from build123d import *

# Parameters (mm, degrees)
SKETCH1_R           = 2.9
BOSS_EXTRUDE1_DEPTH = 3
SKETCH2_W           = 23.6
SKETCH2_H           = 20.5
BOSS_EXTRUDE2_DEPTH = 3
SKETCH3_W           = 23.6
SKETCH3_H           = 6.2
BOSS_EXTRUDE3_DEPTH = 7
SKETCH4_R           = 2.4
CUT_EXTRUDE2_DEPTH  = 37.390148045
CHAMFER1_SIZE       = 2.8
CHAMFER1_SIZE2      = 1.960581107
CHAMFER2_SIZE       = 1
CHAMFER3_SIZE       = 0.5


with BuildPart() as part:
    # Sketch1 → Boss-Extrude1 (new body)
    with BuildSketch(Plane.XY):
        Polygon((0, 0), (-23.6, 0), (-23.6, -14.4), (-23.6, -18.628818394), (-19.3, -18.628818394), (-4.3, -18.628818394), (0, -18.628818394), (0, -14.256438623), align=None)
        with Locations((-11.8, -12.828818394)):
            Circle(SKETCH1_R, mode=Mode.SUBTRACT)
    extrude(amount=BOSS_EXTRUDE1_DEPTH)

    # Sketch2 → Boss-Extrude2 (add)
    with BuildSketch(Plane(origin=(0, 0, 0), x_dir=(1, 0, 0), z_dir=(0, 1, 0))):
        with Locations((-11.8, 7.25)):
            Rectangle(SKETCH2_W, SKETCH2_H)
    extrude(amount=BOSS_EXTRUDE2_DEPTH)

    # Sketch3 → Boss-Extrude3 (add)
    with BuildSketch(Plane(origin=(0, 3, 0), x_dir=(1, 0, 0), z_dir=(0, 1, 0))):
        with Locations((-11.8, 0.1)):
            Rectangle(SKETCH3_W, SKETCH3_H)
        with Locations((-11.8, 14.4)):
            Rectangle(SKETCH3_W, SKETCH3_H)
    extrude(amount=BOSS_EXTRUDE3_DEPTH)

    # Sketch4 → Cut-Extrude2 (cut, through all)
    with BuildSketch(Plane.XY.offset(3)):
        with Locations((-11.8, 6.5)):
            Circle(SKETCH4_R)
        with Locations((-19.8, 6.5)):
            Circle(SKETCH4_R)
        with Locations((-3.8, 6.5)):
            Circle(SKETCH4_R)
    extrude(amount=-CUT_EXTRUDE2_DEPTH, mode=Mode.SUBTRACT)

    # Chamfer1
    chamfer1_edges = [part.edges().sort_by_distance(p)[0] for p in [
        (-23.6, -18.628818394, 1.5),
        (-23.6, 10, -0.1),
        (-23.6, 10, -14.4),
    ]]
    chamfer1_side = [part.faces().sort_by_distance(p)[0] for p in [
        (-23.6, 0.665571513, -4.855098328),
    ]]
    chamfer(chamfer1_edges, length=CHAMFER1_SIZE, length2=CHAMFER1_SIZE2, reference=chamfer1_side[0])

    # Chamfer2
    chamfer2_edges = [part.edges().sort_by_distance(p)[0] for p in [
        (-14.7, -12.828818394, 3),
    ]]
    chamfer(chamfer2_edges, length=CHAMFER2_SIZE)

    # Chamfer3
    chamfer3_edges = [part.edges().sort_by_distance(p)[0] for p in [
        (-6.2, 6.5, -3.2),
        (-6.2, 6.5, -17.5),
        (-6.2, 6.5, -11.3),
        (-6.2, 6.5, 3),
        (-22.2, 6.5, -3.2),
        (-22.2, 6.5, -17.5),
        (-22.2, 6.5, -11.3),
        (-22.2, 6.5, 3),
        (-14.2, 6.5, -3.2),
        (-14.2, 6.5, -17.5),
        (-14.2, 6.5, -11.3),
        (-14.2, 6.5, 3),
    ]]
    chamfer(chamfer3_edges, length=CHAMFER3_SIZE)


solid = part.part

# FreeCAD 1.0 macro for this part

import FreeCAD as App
import Part
import Sketcher


def edges_at(feature, points):
    """Names of the edges that pass closest to the given points."""
    edges = feature.Shape.Edges
    near = lambda p: min(range(len(edges)), key=lambda i: edges[i].distToShape(Part.Vertex(*p))[0])
    return sorted({f"Edge{near(p) + 1}" for p in points})

doc = App.newDocument("Part")
body = doc.addObject("PartDesign::Body", "Body")

# Sketch on XY plane
sketch1 = body.newObject("Sketcher::SketchObject", "Sketch")
sketch1.AttachmentSupport = (doc.getObject("XY_Plane"), [""])
sketch1.MapMode = "FlatFace"
sketch1.addGeometry([
    Part.LineSegment(App.Vector(0, 0, 0), App.Vector(-23.6, 0, 0)),  # 0
    Part.LineSegment(App.Vector(-23.6, 0, 0), App.Vector(-23.6, -18.6, 0)),  # 1
    Part.LineSegment(App.Vector(-23.6, -18.6, 0), App.Vector(0, -18.6, 0)),  # 2
    Part.LineSegment(App.Vector(0, -18.6, 0), App.Vector(0, 0, 0)),  # 3
    Part.Circle(App.Vector(-11.8, -12.8, 0), App.Vector(0, 0, 1), 2.9),  # 4
], False)
sketch1.addConstraint([
    Sketcher.Constraint("Coincident", 0, 2, 1, 1),
    Sketcher.Constraint("Coincident", 1, 2, 2, 1),
    Sketcher.Constraint("Coincident", 2, 2, 3, 1),
    Sketcher.Constraint("Coincident", 3, 2, 0, 1),
    Sketcher.Constraint("Horizontal", 0),
    Sketcher.Constraint("Vertical", 1),
    Sketcher.Constraint("Horizontal", 2),
    Sketcher.Constraint("Vertical", 3),
    Sketcher.Constraint("Coincident", 3, 2, -1, 1),
    Sketcher.Constraint("Diameter", 4, 5.8),
    Sketcher.Constraint("DistanceX", 0, 2, 0, 1, 23.6),
    Sketcher.Constraint("DistanceX", 4, 3, -1, 1, 11.8),
    Sketcher.Constraint("DistanceY", 1, 2, 4, 3, 5.8),
    Sketcher.Constraint("DistanceY", 1, 2, 1, 1, 18.628818),
])
pad1 = body.newObject("PartDesign::Pad", "Pad")
pad1.Profile = sketch1
pad1.Length = 3

# Sketch on XZ plane
sketch2 = body.newObject("Sketcher::SketchObject", "Sketch001")
sketch2.AttachmentSupport = (doc.getObject("XZ_Plane"), [""])
sketch2.MapMode = "FlatFace"
sketch2.addGeometry([
    Part.LineSegment(App.Vector(-24, -18, 0), App.Vector(-24, 3, 0)),
    Part.LineSegment(App.Vector(-24, 3, 0), App.Vector(0, 3, 0)),
    Part.LineSegment(App.Vector(0, 3, 0), App.Vector(0, -18, 0)),
    Part.LineSegment(App.Vector(0, -18, 0), App.Vector(-24, -18, 0)),
], False)
sketch2.addConstraint([
    Sketcher.Constraint("Coincident", 0, 2, 1, 1),
    Sketcher.Constraint("Coincident", 1, 2, 2, 1),
    Sketcher.Constraint("Coincident", 2, 2, 3, 1),
    Sketcher.Constraint("Coincident", 3, 2, 0, 1),
    Sketcher.Constraint("Vertical", 0),
    Sketcher.Constraint("Horizontal", 1),
    Sketcher.Constraint("Vertical", 2),
    Sketcher.Constraint("Horizontal", 3),
    Sketcher.Constraint("PointOnObject", 1, 2, -2),
    Sketcher.Constraint("DistanceX", 1, 1, 1, 2, 23.6),
    Sketcher.Constraint("DistanceY", 0, 1, 0, 2, 20.5),
    Sketcher.Constraint("DistanceY", -1, 1, 0, 2, 3.0),
])
pad2 = body.newObject("PartDesign::Pad", "Pad001")
pad2.Profile = sketch2
pad2.Length = 3
pad2.Reversed = True

# Sketch on XZ plane
sketch3 = body.newObject("Sketcher::SketchObject", "Sketch002")
sketch3.AttachmentSupport = (doc.getObject("XZ_Plane"), [""])
sketch3.MapMode = "FlatFace"
sketch3.AttachmentOffset = App.Placement(App.Vector(0, 0, -3), App.Rotation())
sketch3.addGeometry([
    Part.LineSegment(App.Vector(-24, -3, 0), App.Vector(-24, 3, 0)),  # 0
    Part.LineSegment(App.Vector(-24, 3, 0), App.Vector(0, 3, 0)),  # 1
    Part.LineSegment(App.Vector(0, 3, 0), App.Vector(0, -3, 0)),  # 2
    Part.LineSegment(App.Vector(0, -3, 0), App.Vector(-24, -3, 0)),  # 3
    Part.LineSegment(App.Vector(-24, -18, 0), App.Vector(-24, -11, 0)),  # 4
    Part.LineSegment(App.Vector(-24, -11, 0), App.Vector(0, -11, 0)),  # 5
    Part.LineSegment(App.Vector(0, -11, 0), App.Vector(0, -18, 0)),  # 6
    Part.LineSegment(App.Vector(0, -18, 0), App.Vector(-24, -18, 0)),  # 7
], False)
sketch3.addConstraint([
    Sketcher.Constraint("Coincident", 0, 2, 1, 1),
    Sketcher.Constraint("Coincident", 1, 2, 2, 1),
    Sketcher.Constraint("Coincident", 2, 2, 3, 1),
    Sketcher.Constraint("Coincident", 3, 2, 0, 1),
    Sketcher.Constraint("Coincident", 4, 2, 5, 1),
    Sketcher.Constraint("Coincident", 5, 2, 6, 1),
    Sketcher.Constraint("Coincident", 6, 2, 7, 1),
    Sketcher.Constraint("Coincident", 7, 2, 4, 1),
    Sketcher.Constraint("Vertical", 0),
    Sketcher.Constraint("Horizontal", 1),
    Sketcher.Constraint("Vertical", 2),
    Sketcher.Constraint("Horizontal", 3),
    Sketcher.Constraint("Vertical", 4),
    Sketcher.Constraint("Horizontal", 5),
    Sketcher.Constraint("Vertical", 6),
    Sketcher.Constraint("Horizontal", 7),
    Sketcher.Constraint("PointOnObject", 1, 2, -2),
    Sketcher.Constraint("PointOnObject", 5, 2, -2),
    Sketcher.Constraint("Vertical", 3, 2, 4, 2),
    Sketcher.Constraint("Equal", 2, 4),
    Sketcher.Constraint("DistanceX", 1, 1, 1, 2, 23.6),
    Sketcher.Constraint("DistanceY", 0, 1, 0, 2, 6.2),
    Sketcher.Constraint("DistanceY", -1, 1, 0, 2, 3.0),
    Sketcher.Constraint("DistanceY", 4, 2, -1, 1, 11.3),
])
pad3 = body.newObject("PartDesign::Pad", "Pad002")
pad3.Profile = sketch3
pad3.Length = 7
pad3.Reversed = True

# Sketch on XY plane
sketch4 = body.newObject("Sketcher::SketchObject", "Sketch003")
sketch4.AttachmentSupport = (doc.getObject("XY_Plane"), [""])
sketch4.MapMode = "FlatFace"
sketch4.AttachmentOffset = App.Placement(App.Vector(0, 0, 3), App.Rotation())
sketch4.addGeometry([
    Part.Circle(App.Vector(-11.8, 6.5, 0), App.Vector(0, 0, 1), 2.4),
    Part.Circle(App.Vector(-19.8, 6.5, 0), App.Vector(0, 0, 1), 2.4),
    Part.Circle(App.Vector(-3.8, 6.5, 0), App.Vector(0, 0, 1), 2.4),
], False)
sketch4.addConstraint([
    Sketcher.Constraint("Equal", 0, 1),
    Sketcher.Constraint("Equal", 1, 2),
    Sketcher.Constraint("Horizontal", 0, 3, 1, 3),
    Sketcher.Constraint("Horizontal", 1, 3, 2, 3),
    Sketcher.Constraint("Diameter", 0, 4.8),
    Sketcher.Constraint("DistanceX", 1, 3, 0, 3, 8.0),
    Sketcher.Constraint("DistanceX", 0, 3, 2, 3, 8.0),
    Sketcher.Constraint("DistanceX", 0, 3, -1, 1, 11.8),
    Sketcher.Constraint("DistanceY", -1, 1, 0, 3, 6.5),
])
pocket1 = body.newObject("PartDesign::Pocket", "Pocket")
pocket1.Profile = sketch4
pocket1.Type = "ThroughAll"
doc.recompute()

chamfer = body.newObject("PartDesign::Chamfer", "Chamfer")
chamfer.Base = (pocket1, edges_at(pocket1, [(-23.6, -18.629, 1.5), (-23.6, 10, -0.1), (-23.6, 10, -14.4)]))
chamfer.ChamferType = "Two distances"
chamfer.Size = 2.8
chamfer.Size2 = 1.960581
doc.recompute()

chamfer2 = body.newObject("PartDesign::Chamfer", "Chamfer001")
chamfer2.Base = (chamfer, edges_at(chamfer, [(-14.7, -12.829, 3)]))
chamfer2.Size = 1
doc.recompute()

chamfer3 = body.newObject("PartDesign::Chamfer", "Chamfer002")
chamfer3.Base = (chamfer2, edges_at(chamfer2, [
    (-6.2, 6.5, -3.2),
    (-6.2, 6.5, -17.5),
    (-6.2, 6.5, -11.3),
    (-6.2, 6.5, 3),
    (-22.2, 6.5, -3.2),
    (-22.2, 6.5, -17.5),
    (-22.2, 6.5, -11.3),
    (-22.2, 6.5, 3),
    (-14.2, 6.5, -3.2),
    (-14.2, 6.5, -17.5),
    (-14.2, 6.5, -11.3),
    (-14.2, 6.5, 3),
]))
chamfer3.Size = 0.5

doc.recompute()
